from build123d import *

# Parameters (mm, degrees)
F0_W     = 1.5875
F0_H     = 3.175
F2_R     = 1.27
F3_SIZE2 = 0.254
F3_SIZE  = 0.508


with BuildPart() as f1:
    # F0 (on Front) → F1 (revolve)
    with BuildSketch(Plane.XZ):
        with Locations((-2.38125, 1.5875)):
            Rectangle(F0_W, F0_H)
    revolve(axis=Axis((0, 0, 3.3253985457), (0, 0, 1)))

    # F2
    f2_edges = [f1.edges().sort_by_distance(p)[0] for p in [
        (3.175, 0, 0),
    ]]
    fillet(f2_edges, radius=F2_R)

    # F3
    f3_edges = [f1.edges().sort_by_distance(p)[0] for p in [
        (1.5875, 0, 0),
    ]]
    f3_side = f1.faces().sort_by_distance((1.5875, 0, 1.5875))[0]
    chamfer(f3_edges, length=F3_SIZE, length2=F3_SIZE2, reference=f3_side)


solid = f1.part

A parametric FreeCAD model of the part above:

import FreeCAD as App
import Part
import Sketcher
Q = App.Units.Quantity


def edges_at(feature, points):
    """Names of the edges that pass closest to the given points."""
    edges = feature.Shape.Edges
    near = lambda p: min(range(len(edges)), key=lambda i: edges[i].distToShape(Part.Vertex(*p))[0])
    return sorted({f"Edge{near(p) + 1}" for p in points})


def add_polygon(sketch, points):
    """Adds a closed chain of lines whose ends are joined by coincident constraints."""
    first, n = sketch.GeometryCount, len(points)
    for a, b in zip(points, points[1:] + points[:1]):
        sketch.addGeometry(Part.LineSegment(App.Vector(*a, 0), App.Vector(*b, 0)), False)
    for i in range(n):
        sketch.addConstraint(Sketcher.Constraint("Coincident", first + i, 2, first + (i + 1) % n, 1))

doc = App.newDocument("Part")
params = doc.addObject("Spreadsheet::Sheet", "Params")
for row, (alias, value) in enumerate([
    ("sketch1_width", "0.0625 in"),
    ("sketch1_height", "0.125 in"),
    ("revolution_angle", "360 deg"),
    ("fillet_radius", "0.05 in"),
    ("chamfer_size", "0.02 in"),
    ("chamfer_size2", "0.01 in"),
], start=1):
    params.set(f"A{row}", alias)
    params.set(f"B{row}", "=" + value)
    params.setAlias(f"B{row}", alias)

body = doc.addObject("PartDesign::Body", "Body")

# Sketch on XZ plane
sketch1 = doc.addObject("Sketcher::SketchObject", "Sketch")
body.addObject(sketch1)
sketch1.AttachmentSupport = (doc.XZ_Plane, [""])
sketch1.MapMode = "FlatFace"
add_polygon(sketch1, [(-3.2, 3.2), (-3.2, 0), (-1.6, 0), (-1.6, 3.2)])  # lines 0-3
sketch1.addConstraint([
    Sketcher.Constraint("Vertical", 0),
    Sketcher.Constraint("Horizontal", 1),
    Sketcher.Constraint("Vertical", 2),
    Sketcher.Constraint("Horizontal", 3),
    Sketcher.Constraint("PointOnObject", 0, 2, -1),
    Sketcher.Constraint("DistanceX", 1, 1, 1, 2, Q("0.0625 in")),
    Sketcher.Constraint("DistanceY", 0, 2, 0, 1, Q("0.125 in")),
    Sketcher.Constraint("DistanceX", 0, 2, -1, 1, Q("0.125 in")),
])
sketch1.setExpression("Constraints[9]", "Params.sketch1_width")
sketch1.setExpression("Constraints[10]", "Params.sketch1_height")
revolution = doc.addObject("PartDesign::Revolution", "Revolution")
body.addObject(revolution)
revolution.Profile = sketch1
revolution.ReferenceAxis = (sketch1, ["V_Axis"])
revolution.setExpression("Angle", "Params.revolution_angle")
doc.recompute()

fillet = doc.addObject("PartDesign::Fillet", "Fillet")
body.addObject(fillet)
fillet.Base = (revolution, edges_at(revolution, [(3.175, 0, 0)]))
fillet.setExpression("Radius", "Params.fillet_radius")
doc.recompute()

chamfer = doc.addObject("PartDesign::Chamfer", "Chamfer")
body.addObject(chamfer)
chamfer.Base = (fillet, edges_at(fillet, [(1.587, 0, 0)]))
chamfer.ChamferType = "Two distances"
chamfer.setExpression("Size", "Params.chamfer_size")
chamfer.setExpression("Size2", "Params.chamfer_size2")
chamfer.FlipDirection = True

doc.recompute()
